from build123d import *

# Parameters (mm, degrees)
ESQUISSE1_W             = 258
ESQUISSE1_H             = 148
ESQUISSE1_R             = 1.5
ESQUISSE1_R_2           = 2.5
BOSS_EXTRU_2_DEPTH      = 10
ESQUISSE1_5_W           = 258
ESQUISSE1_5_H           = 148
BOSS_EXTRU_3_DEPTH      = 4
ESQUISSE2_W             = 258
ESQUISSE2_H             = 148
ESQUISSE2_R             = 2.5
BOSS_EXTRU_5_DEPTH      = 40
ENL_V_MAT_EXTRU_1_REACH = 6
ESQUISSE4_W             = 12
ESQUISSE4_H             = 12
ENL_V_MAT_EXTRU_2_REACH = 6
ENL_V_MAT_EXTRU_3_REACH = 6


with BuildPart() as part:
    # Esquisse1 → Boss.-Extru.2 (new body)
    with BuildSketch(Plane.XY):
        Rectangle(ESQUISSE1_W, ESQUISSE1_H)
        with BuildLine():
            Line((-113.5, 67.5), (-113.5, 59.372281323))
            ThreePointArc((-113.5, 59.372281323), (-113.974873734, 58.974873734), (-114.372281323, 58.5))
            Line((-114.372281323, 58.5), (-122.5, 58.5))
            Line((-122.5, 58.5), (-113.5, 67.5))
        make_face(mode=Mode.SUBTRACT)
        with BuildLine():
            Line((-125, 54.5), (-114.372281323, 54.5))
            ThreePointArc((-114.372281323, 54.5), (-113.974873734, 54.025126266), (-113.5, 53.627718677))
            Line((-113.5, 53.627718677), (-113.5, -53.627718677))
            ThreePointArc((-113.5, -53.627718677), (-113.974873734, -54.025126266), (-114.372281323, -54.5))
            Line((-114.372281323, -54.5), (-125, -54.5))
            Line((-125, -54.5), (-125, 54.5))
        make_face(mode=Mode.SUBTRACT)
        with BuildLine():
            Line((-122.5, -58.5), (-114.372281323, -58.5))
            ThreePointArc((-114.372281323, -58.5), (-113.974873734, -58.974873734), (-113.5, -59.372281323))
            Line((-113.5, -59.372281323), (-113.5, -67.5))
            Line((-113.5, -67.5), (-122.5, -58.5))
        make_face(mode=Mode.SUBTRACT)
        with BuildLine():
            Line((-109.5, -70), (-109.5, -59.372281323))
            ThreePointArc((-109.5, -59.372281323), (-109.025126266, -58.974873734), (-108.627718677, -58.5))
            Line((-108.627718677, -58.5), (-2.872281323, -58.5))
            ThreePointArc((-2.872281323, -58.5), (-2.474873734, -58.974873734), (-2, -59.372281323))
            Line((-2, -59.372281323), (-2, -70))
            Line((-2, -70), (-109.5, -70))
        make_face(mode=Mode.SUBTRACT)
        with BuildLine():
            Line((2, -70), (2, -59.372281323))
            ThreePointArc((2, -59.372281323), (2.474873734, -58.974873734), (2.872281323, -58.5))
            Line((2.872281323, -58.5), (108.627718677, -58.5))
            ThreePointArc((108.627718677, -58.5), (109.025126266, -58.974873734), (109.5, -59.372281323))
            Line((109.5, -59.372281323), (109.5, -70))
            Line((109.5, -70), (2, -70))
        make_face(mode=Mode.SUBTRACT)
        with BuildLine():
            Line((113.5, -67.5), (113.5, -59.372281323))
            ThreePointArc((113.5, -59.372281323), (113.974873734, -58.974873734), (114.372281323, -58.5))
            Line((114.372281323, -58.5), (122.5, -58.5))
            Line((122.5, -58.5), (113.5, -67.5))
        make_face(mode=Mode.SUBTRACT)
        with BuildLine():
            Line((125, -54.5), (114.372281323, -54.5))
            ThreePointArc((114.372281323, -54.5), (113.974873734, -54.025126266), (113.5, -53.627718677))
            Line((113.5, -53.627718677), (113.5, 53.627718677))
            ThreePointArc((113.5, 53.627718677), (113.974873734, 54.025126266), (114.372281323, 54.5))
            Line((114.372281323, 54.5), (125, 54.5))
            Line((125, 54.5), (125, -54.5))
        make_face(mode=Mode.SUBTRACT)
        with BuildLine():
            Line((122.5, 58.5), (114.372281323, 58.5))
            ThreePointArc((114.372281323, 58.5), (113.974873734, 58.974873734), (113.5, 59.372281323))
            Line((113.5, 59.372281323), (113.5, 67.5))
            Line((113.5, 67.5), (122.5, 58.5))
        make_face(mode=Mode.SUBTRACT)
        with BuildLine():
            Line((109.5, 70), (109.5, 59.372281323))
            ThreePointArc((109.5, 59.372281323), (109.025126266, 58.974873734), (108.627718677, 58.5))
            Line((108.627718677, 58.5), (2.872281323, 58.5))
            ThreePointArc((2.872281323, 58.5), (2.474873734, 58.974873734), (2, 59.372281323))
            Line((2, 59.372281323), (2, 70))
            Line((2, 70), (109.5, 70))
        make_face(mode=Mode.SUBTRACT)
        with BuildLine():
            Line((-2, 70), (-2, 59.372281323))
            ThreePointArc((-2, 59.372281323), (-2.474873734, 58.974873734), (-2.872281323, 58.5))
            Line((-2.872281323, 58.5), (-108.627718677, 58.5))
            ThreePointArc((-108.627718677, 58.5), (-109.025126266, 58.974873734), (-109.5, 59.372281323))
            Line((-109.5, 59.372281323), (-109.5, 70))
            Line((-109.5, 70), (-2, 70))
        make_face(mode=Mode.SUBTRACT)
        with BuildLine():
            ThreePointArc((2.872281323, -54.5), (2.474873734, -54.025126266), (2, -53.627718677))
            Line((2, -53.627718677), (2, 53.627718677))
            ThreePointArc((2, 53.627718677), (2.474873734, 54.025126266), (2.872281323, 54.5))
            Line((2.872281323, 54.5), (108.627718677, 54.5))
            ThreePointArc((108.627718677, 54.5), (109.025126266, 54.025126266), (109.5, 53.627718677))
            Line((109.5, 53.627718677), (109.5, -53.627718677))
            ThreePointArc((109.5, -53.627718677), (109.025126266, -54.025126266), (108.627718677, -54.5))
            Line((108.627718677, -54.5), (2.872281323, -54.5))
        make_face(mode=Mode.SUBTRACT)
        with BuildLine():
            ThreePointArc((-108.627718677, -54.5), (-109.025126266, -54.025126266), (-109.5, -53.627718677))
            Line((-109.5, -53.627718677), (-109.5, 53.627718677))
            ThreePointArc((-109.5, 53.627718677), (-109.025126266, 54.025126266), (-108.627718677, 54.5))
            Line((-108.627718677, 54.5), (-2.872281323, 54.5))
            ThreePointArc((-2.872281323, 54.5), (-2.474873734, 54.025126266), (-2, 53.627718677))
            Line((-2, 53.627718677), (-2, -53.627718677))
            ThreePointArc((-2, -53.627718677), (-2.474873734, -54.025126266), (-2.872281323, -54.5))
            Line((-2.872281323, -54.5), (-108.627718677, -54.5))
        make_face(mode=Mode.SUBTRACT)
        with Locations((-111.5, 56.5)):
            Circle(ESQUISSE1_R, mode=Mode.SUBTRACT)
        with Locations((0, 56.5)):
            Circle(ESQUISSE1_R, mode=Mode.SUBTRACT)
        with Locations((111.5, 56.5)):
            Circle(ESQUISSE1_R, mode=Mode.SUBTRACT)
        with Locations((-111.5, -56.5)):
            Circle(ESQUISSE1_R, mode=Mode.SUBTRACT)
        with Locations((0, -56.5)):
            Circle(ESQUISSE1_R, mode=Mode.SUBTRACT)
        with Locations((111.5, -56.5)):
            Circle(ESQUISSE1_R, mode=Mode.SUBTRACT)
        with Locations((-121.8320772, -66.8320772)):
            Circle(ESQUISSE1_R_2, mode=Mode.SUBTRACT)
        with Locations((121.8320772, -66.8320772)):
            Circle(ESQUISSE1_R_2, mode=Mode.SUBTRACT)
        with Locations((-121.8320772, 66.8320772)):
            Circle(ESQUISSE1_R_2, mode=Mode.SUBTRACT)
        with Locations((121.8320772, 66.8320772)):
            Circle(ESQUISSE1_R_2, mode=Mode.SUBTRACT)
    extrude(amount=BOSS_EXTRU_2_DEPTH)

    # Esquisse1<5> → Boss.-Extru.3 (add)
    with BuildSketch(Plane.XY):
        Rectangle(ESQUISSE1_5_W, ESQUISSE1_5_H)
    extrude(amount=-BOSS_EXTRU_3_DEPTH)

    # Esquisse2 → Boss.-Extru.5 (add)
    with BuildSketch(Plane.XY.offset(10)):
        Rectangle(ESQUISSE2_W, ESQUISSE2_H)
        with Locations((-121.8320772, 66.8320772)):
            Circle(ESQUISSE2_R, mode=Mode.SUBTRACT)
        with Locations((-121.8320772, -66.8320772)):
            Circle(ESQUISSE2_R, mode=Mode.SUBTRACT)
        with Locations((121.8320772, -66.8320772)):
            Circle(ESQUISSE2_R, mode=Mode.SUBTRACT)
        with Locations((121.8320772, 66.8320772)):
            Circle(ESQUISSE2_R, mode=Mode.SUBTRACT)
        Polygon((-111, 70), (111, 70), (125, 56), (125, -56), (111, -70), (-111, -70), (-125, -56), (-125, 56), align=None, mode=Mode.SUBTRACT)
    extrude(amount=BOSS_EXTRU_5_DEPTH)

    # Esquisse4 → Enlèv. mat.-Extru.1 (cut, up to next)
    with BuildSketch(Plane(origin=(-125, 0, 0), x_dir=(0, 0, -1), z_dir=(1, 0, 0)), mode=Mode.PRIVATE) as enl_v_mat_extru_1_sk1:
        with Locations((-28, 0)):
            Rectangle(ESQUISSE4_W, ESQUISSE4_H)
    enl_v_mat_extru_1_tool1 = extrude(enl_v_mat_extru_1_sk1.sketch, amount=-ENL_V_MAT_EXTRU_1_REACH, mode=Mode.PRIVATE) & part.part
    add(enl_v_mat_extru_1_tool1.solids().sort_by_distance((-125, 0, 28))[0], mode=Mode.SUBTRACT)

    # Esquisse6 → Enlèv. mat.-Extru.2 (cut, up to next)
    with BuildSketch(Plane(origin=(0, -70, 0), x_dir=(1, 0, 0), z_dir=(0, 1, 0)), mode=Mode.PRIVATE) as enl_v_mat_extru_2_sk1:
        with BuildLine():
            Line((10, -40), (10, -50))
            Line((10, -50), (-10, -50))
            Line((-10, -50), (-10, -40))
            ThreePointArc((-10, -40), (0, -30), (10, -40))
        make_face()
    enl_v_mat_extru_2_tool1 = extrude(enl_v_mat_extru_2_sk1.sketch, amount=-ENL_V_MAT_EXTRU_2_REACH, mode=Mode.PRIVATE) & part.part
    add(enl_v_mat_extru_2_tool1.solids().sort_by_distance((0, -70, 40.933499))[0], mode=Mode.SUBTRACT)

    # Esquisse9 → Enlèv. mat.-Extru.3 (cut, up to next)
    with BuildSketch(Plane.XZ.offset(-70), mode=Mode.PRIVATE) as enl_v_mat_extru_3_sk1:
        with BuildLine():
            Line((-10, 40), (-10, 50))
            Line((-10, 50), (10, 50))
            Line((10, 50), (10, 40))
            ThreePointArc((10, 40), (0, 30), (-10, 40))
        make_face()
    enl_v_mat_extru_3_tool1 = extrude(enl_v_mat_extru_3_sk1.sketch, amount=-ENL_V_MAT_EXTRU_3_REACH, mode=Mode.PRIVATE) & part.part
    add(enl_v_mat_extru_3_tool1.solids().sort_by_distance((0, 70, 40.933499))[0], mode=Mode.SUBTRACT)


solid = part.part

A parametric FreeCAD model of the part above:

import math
import FreeCAD as App
import Part
import Sketcher
from FreeCAD import Vector

doc = App.newDocument("Part")
body = doc.addObject("PartDesign::Body", "Body")

# Sketch on XY plane
sketch1 = body.newObject("Sketcher::SketchObject", "Sketch")
sketch1.AttachmentSupport = (doc.getObject("XY_Plane"), [""])
sketch1.MapMode = "FlatFace"
sketch1.addGeometry([
    Part.LineSegment(Vector(-129, 74, 0), Vector(-129, -74, 0)),  # 0
    Part.LineSegment(Vector(-129, -74, 0), Vector(129, -74, 0)),  # 1
    Part.LineSegment(Vector(129, -74, 0), Vector(129, 74, 0)),  # 2
    Part.LineSegment(Vector(129, 74, 0), Vector(-129, 74, 0)),  # 3
    Part.Circle(Vector(-121.8, -66.8, 0), Vector(0, 0, 1), 2.5),  # 4
    Part.LineSegment(Vector(-113.5, -67.5, 0), Vector(-122.5, -58.5, 0)),  # 5
    Part.LineSegment(Vector(-122.5, -58.5, 0), Vector(-114.4, -58.5, 0)),  # 6
    Part.ArcOfCircle(Part.Circle(Vector(-111.5, -56.5, 0), Vector(0, 0, 1), 3.5), math.radians(-145), math.radians(-125)),  # 7
    Part.LineSegment(Vector(-113.5, -59.4, 0), Vector(-113.5, -67.5, 0)),  # 8
    Part.Circle(Vector(-111.5, -56.5, 0), Vector(0, 0, 1), 1.5),  # 9
    Part.LineSegment(Vector(-2, -70, 0), Vector(-109.5, -70, 0)),  # 10
    Part.LineSegment(Vector(-109.5, -70, 0), Vector(-109.5, -59.4, 0)),  # 11
    Part.ArcOfCircle(Part.Circle(Vector(-111.5, -56.5, 0), Vector(0, 0, 1), 3.5), math.radians(-55), math.radians(-35)),  # 12
    Part.LineSegment(Vector(-108.6, -58.5, 0), Vector(-2.9, -58.5, 0)),  # 13
    Part.ArcOfCircle(Part.Circle(Vector(0, -56.5, 0), Vector(0, 0, 1), 3.5), math.radians(-145), math.radians(-125)),  # 14
    Part.LineSegment(Vector(-2, -59.4, 0), Vector(-2, -70, 0)),  # 15
    Part.Circle(Vector(0, -56.5, 0), Vector(0, 0, 1), 1.5),  # 16
    Part.LineSegment(Vector(109.5, -70, 0), Vector(2, -70, 0)),  # 17
    Part.LineSegment(Vector(2, -70, 0), Vector(2, -59.4, 0)),  # 18
    Part.ArcOfCircle(Part.Circle(Vector(0, -56.5, 0), Vector(0, 0, 1), 3.5), math.radians(-55), math.radians(-35)),  # 19
    Part.LineSegment(Vector(2.9, -58.5, 0), Vector(108.6, -58.5, 0)),  # 20
    Part.ArcOfCircle(Part.Circle(Vector(111.5, -56.5, 0), Vector(0, 0, 1), 3.5), math.radians(-145), math.radians(-125)),  # 21
    Part.LineSegment(Vector(109.5, -59.4, 0), Vector(109.5, -70, 0)),  # 22
    Part.Circle(Vector(121.8, -66.8, 0), Vector(0, 0, 1), 2.5),  # 23
    Part.LineSegment(Vector(122.5, -58.5, 0), Vector(113.5, -67.5, 0)),  # 24
    Part.LineSegment(Vector(113.5, -67.5, 0), Vector(113.5, -59.4, 0)),  # 25
    Part.ArcOfCircle(Part.Circle(Vector(111.5, -56.5, 0), Vector(0, 0, 1), 3.5), math.radians(-55), math.radians(-35)),  # 26
    Part.LineSegment(Vector(114.4, -58.5, 0), Vector(122.5, -58.5, 0)),  # 27
    Part.Circle(Vector(111.5, -56.5, 0), Vector(0, 0, 1), 1.5),  # 28
    Part.LineSegment(Vector(-125, -54.5, 0), Vector(-125, 54.5, 0)),  # 29
    Part.LineSegment(Vector(-125, 54.5, 0), Vector(-114.4, 54.5, 0)),  # 30
    Part.ArcOfCircle(Part.Circle(Vector(-111.5, 56.5, 0), Vector(0, 0, 1), 3.5), math.radians(-145), math.radians(-125)),  # 31
    Part.LineSegment(Vector(-113.5, 53.6, 0), Vector(-113.5, -53.6, 0)),  # 32
    Part.ArcOfCircle(Part.Circle(Vector(-111.5, -56.5, 0), Vector(0, 0, 1), 3.5), math.radians(125), math.radians(145)),  # 33
    Part.LineSegment(Vector(-114.4, -54.5, 0), Vector(-125, -54.5, 0)),  # 34
    Part.LineSegment(Vector(-2.9, -54.5, 0), Vector(-108.6, -54.5, 0)),  # 35
    Part.ArcOfCircle(Part.Circle(Vector(-111.5, -56.5, 0), Vector(0, 0, 1), 3.5), math.radians(35), math.radians(55)),  # 36
    Part.LineSegment(Vector(-109.5, -53.6, 0), Vector(-109.5, 53.6, 0)),  # 37
    Part.ArcOfCircle(Part.Circle(Vector(-111.5, 56.5, 0), Vector(0, 0, 1), 3.5), math.radians(-55), math.radians(-35)),  # 38
    Part.LineSegment(Vector(-108.6, 54.5, 0), Vector(-2.9, 54.5, 0)),  # 39
    Part.ArcOfCircle(Part.Circle(Vector(0, 56.5, 0), Vector(0, 0, 1), 3.5), math.radians(-145), math.radians(-125)),  # 40
    Part.LineSegment(Vector(-2, 53.6, 0), Vector(-2, -53.6, 0)),  # 41
    Part.ArcOfCircle(Part.Circle(Vector(0, -56.5, 0), Vector(0, 0, 1), 3.5), math.radians(125), math.radians(145)),  # 42
    Part.Circle(Vector(-111.5, 56.5, 0), Vector(0, 0, 1), 1.5),  # 43
    Part.LineSegment(Vector(-122.5, 58.5, 0), Vector(-113.5, 67.5, 0)),  # 44
    Part.LineSegment(Vector(-113.5, 67.5, 0), Vector(-113.5, 59.4, 0)),  # 45
    Part.ArcOfCircle(Part.Circle(Vector(-111.5, 56.5, 0), Vector(0, 0, 1), 3.5), math.radians(125), math.radians(145)),  # 46
    Part.LineSegment(Vector(-114.4, 58.5, 0), Vector(-122.5, 58.5, 0)),  # 47
    Part.Circle(Vector(-121.8, 66.8, 0), Vector(0, 0, 1), 2.5),  # 48
    Part.LineSegment(Vector(-109.5, 70, 0), Vector(-2, 70, 0)),  # 49
    Part.LineSegment(Vector(-2, 70, 0), Vector(-2, 59.4, 0)),  # 50
    Part.ArcOfCircle(Part.Circle(Vector(0, 56.5, 0), Vector(0, 0, 1), 3.5), math.radians(125), math.radians(145)),  # 51
    Part.LineSegment(Vector(-2.9, 58.5, 0), Vector(-108.6, 58.5, 0)),  # 52
    Part.ArcOfCircle(Part.Circle(Vector(-111.5, 56.5, 0), Vector(0, 0, 1), 3.5), math.radians(35), math.radians(55)),  # 53
    Part.LineSegment(Vector(-109.5, 59.4, 0), Vector(-109.5, 70, 0)),  # 54
    Part.LineSegment(Vector(108.6, -54.5, 0), Vector(2.9, -54.5, 0)),  # 55
    Part.ArcOfCircle(Part.Circle(Vector(0, -56.5, 0), Vector(0, 0, 1), 3.5), math.radians(35), math.radians(55)),  # 56
    Part.LineSegment(Vector(2, -53.6, 0), Vector(2, 53.6, 0)),  # 57
    Part.ArcOfCircle(Part.Circle(Vector(0, 56.5, 0), Vector(0, 0, 1), 3.5), math.radians(-55), math.radians(-35)),  # 58
    Part.LineSegment(Vector(2.9, 54.5, 0), Vector(108.6, 54.5, 0)),  # 59
    Part.ArcOfCircle(Part.Circle(Vector(111.5, 56.5, 0), Vector(0, 0, 1), 3.5), math.radians(-145), math.radians(-125)),  # 60
    Part.LineSegment(Vector(109.5, 53.6, 0), Vector(109.5, -53.6, 0)),  # 61
    Part.ArcOfCircle(Part.Circle(Vector(111.5, -56.5, 0), Vector(0, 0, 1), 3.5), math.radians(125), math.radians(145)),  # 62
    Part.LineSegment(Vector(125, 54.5, 0), Vector(125, -54.5, 0)),  # 63
    Part.LineSegment(Vector(125, -54.5, 0), Vector(114.4, -54.5, 0)),  # 64
    Part.ArcOfCircle(Part.Circle(Vector(111.5, -56.5, 0), Vector(0, 0, 1), 3.5), math.radians(35), math.radians(55)),  # 65
    Part.LineSegment(Vector(113.5, -53.6, 0), Vector(113.5, 53.6, 0)),  # 66
    Part.ArcOfCircle(Part.Circle(Vector(111.5, 56.5, 0), Vector(0, 0, 1), 3.5), math.radians(-55), math.radians(-35)),  # 67
    Part.LineSegment(Vector(114.4, 54.5, 0), Vector(125, 54.5, 0)),  # 68
    Part.Circle(Vector(0, 56.5, 0), Vector(0, 0, 1), 1.5),  # 69
    Part.LineSegment(Vector(2, 70, 0), Vector(109.5, 70, 0)),  # 70
    Part.LineSegment(Vector(109.5, 70, 0), Vector(109.5, 59.4, 0)),  # 71
    Part.ArcOfCircle(Part.Circle(Vector(111.5, 56.5, 0), Vector(0, 0, 1), 3.5), math.radians(125), math.radians(145)),  # 72
    Part.LineSegment(Vector(108.6, 58.5, 0), Vector(2.9, 58.5, 0)),  # 73
    Part.ArcOfCircle(Part.Circle(Vector(0, 56.5, 0), Vector(0, 0, 1), 3.5), math.radians(35), math.radians(55)),  # 74
    Part.LineSegment(Vector(2, 59.4, 0), Vector(2, 70, 0)),  # 75
    Part.Circle(Vector(111.5, 56.5, 0), Vector(0, 0, 1), 1.5),  # 76
    Part.LineSegment(Vector(113.5, 67.5, 0), Vector(122.5, 58.5, 0)),  # 77
    Part.LineSegment(Vector(122.5, 58.5, 0), Vector(114.4, 58.5, 0)),  # 78
    Part.ArcOfCircle(Part.Circle(Vector(111.5, 56.5, 0), Vector(0, 0, 1), 3.5), math.radians(35), math.radians(55)),  # 79
    Part.LineSegment(Vector(113.5, 59.4, 0), Vector(113.5, 67.5, 0)),  # 80
    Part.Circle(Vector(121.8, 66.8, 0), Vector(0, 0, 1), 2.5),  # 81
], False)
sketch1.addConstraint([
    Sketcher.Constraint("Coincident", 0, 2, 1, 1),
    Sketcher.Constraint("Coincident", 1, 2, 2, 1),
    Sketcher.Constraint("Coincident", 2, 2, 3, 1),
    Sketcher.Constraint("Coincident", 3, 2, 0, 1),
    Sketcher.Constraint("Coincident", 5, 2, 6, 1),
    Sketcher.Constraint("Coincident", 6, 2, 7, 1),
    Sketcher.Constraint("Coincident", 7, 2, 8, 1),
    Sketcher.Constraint("Coincident", 8, 2, 5, 1),
    Sketcher.Constraint("Coincident", 10, 2, 11, 1),
    Sketcher.Constraint("Coincident", 11, 2, 12, 1),
    Sketcher.Constraint("Coincident", 12, 2, 13, 1),
    Sketcher.Constraint("Coincident", 13, 2, 14, 1),
    Sketcher.Constraint("Coincident", 14, 2, 15, 1),
    Sketcher.Constraint("Coincident", 15, 2, 10, 1),
    Sketcher.Constraint("Coincident", 17, 2, 18, 1),
    Sketcher.Constraint("Coincident", 18, 2, 19, 1),
    Sketcher.Constraint("Coincident", 19, 2, 20, 1),
    Sketcher.Constraint("Coincident", 20, 2, 21, 1),
    Sketcher.Constraint("Coincident", 21, 2, 22, 1),
    Sketcher.Constraint("Coincident", 22, 2, 17, 1),
    Sketcher.Constraint("Coincident", 24, 2, 25, 1),
    Sketcher.Constraint("Coincident", 25, 2, 26, 1),
    Sketcher.Constraint("Coincident", 26, 2, 27, 1),
    Sketcher.Constraint("Coincident", 27, 2, 24, 1),
    Sketcher.Constraint("Coincident", 29, 2, 30, 1),
    Sketcher.Constraint("Coincident", 30, 2, 31, 1),
    Sketcher.Constraint("Coincident", 31, 2, 32, 1),
    Sketcher.Constraint("Coincident", 32, 2, 33, 1),
    Sketcher.Constraint("Coincident", 33, 2, 34, 1),
    Sketcher.Constraint("Coincident", 34, 2, 29, 1),
    Sketcher.Constraint("Coincident", 35, 2, 36, 1),
    Sketcher.Constraint("Coincident", 36, 2, 37, 1),
    Sketcher.Constraint("Coincident", 37, 2, 38, 1),
    Sketcher.Constraint("Coincident", 38, 2, 39, 1),
    Sketcher.Constraint("Coincident", 39, 2, 40, 1),
    Sketcher.Constraint("Coincident", 40, 2, 41, 1),
    Sketcher.Constraint("Coincident", 41, 2, 42, 1),
    Sketcher.Constraint("Coincident", 42, 2, 35, 1),
    Sketcher.Constraint("Coincident", 44, 2, 45, 1),
    Sketcher.Constraint("Coincident", 45, 2, 46, 1),
    Sketcher.Constraint("Coincident", 46, 2, 47, 1),
    Sketcher.Constraint("Coincident", 47, 2, 44, 1),
    Sketcher.Constraint("Coincident", 49, 2, 50, 1),
    Sketcher.Constraint("Coincident", 50, 2, 51, 1),
    Sketcher.Constraint("Coincident", 51, 2, 52, 1),
    Sketcher.Constraint("Coincident", 52, 2, 53, 1),
    Sketcher.Constraint("Coincident", 53, 2, 54, 1),
    Sketcher.Constraint("Coincident", 54, 2, 49, 1),
    Sketcher.Constraint("Coincident", 55, 2, 56, 1),
    Sketcher.Constraint("Coincident", 56, 2, 57, 1),
    Sketcher.Constraint("Coincident", 57, 2, 58, 1),
    Sketcher.Constraint("Coincident", 58, 2, 59, 1),
    Sketcher.Constraint("Coincident", 59, 2, 60, 1),
    Sketcher.Constraint("Coincident", 60, 2, 61, 1),
    Sketcher.Constraint("Coincident", 61, 2, 62, 1),
    Sketcher.Constraint("Coincident", 62, 2, 55, 1),
    Sketcher.Constraint("Coincident", 63, 2, 64, 1),
    Sketcher.Constraint("Coincident", 64, 2, 65, 1),
    Sketcher.Constraint("Coincident", 65, 2, 66, 1),
    Sketcher.Constraint("Coincident", 66, 2, 67, 1),
    Sketcher.Constraint("Coincident", 67, 2, 68, 1),
    Sketcher.Constraint("Coincident", 68, 2, 63, 1),
    Sketcher.Constraint("Coincident", 70, 2, 71, 1),
    Sketcher.Constraint("Coincident", 71, 2, 72, 1),
    Sketcher.Constraint("Coincident", 72, 2, 73, 1),
    Sketcher.Constraint("Coincident", 73, 2, 74, 1),
    Sketcher.Constraint("Coincident", 74, 2, 75, 1),
    Sketcher.Constraint("Coincident", 75, 2, 70, 1),
    Sketcher.Constraint("Coincident", 77, 2, 78, 1),
    Sketcher.Constraint("Coincident", 78, 2, 79, 1),
    Sketcher.Constraint("Coincident", 79, 2, 80, 1),
    Sketcher.Constraint("Coincident", 80, 2, 77, 1),
    Sketcher.Constraint("Vertical", 0),
    Sketcher.Constraint("Horizontal", 1),
    Sketcher.Constraint("Vertical", 2),
    Sketcher.Constraint("Horizontal", 3),
    Sketcher.Constraint("Horizontal", 6),
    Sketcher.Constraint("Vertical", 8),
    Sketcher.Constraint("Horizontal", 10),
    Sketcher.Constraint("Vertical", 11),
    Sketcher.Constraint("Horizontal", 13),
    Sketcher.Constraint("Vertical", 15),
    Sketcher.Constraint("Horizontal", 17),
    Sketcher.Constraint("Vertical", 18),
    Sketcher.Constraint("Horizontal", 20),
    Sketcher.Constraint("Vertical", 22),
    Sketcher.Constraint("Vertical", 25),
    Sketcher.Constraint("Horizontal", 27),
    Sketcher.Constraint("Vertical", 29),
    Sketcher.Constraint("Horizontal", 30),
    Sketcher.Constraint("Vertical", 32),
    Sketcher.Constraint("Horizontal", 34),
    Sketcher.Constraint("Horizontal", 35),
    Sketcher.Constraint("Vertical", 37),
    Sketcher.Constraint("Horizontal", 39),
    Sketcher.Constraint("Vertical", 41),
    Sketcher.Constraint("Vertical", 45),
    Sketcher.Constraint("Horizontal", 47),
    Sketcher.Constraint("Horizontal", 49),
    Sketcher.Constraint("Vertical", 50),
    Sketcher.Constraint("Horizontal", 52),
    Sketcher.Constraint("Vertical", 54),
    Sketcher.Constraint("Horizontal", 55),
    Sketcher.Constraint("Vertical", 57),
    Sketcher.Constraint("Horizontal", 59),
    Sketcher.Constraint("Vertical", 61),
    Sketcher.Constraint("Vertical", 63),
    Sketcher.Constraint("Horizontal", 64),
    Sketcher.Constraint("Vertical", 66),
    Sketcher.Constraint("Horizontal", 68),
    Sketcher.Constraint("Horizontal", 70),
    Sketcher.Constraint("Vertical", 71),
    Sketcher.Constraint("Horizontal", 73),
    Sketcher.Constraint("Vertical", 75),
    Sketcher.Constraint("Horizontal", 78),
    Sketcher.Constraint("Vertical", 80),
    Sketcher.Constraint("Coincident", 9, 3, 7, 3),
    Sketcher.Constraint("Coincident", 12, 3, 7, 3),
    Sketcher.Constraint("Coincident", 16, 3, 14, 3),
    Sketcher.Constraint("Coincident", 19, 3, 14, 3),
    Sketcher.Constraint("Coincident", 26, 3, 21, 3),
    Sketcher.Constraint("Coincident", 28, 3, 21, 3),
    Sketcher.Constraint("Coincident", 33, 3, 7, 3),
    Sketcher.Constraint("Coincident", 36, 3, 7, 3),
    Sketcher.Constraint("Coincident", 38, 3, 31, 3),
    Sketcher.Constraint("Coincident", 42, 3, 14, 3),
    Sketcher.Constraint("Coincident", 43, 3, 31, 3),
    Sketcher.Constraint("Coincident", 46, 3, 31, 3),
    Sketcher.Constraint("Coincident", 51, 3, 40, 3),
    Sketcher.Constraint("Coincident", 53, 3, 31, 3),
    Sketcher.Constraint("Coincident", 56, 3, 14, 3),
    Sketcher.Constraint("Coincident", 58, 3, 40, 3),
    Sketcher.Constraint("Coincident", 62, 3, 21, 3),
    Sketcher.Constraint("Coincident", 65, 3, 21, 3),
    Sketcher.Constraint("Coincident", 67, 3, 60, 3),
    Sketcher.Constraint("Coincident", 69, 3, 40, 3),
    Sketcher.Constraint("Coincident", 72, 3, 60, 3),
    Sketcher.Constraint("Coincident", 74, 3, 40, 3),
    Sketcher.Constraint("Coincident", 76, 3, 60, 3),
    Sketcher.Constraint("Coincident", 79, 3, 60, 3),
    Sketcher.Constraint("Equal", 7, 12),
    Sketcher.Constraint("Equal", 12, 14),
    Sketcher.Constraint("Equal", 9, 16),
    Sketcher.Constraint("Equal", 14, 19),
    Sketcher.Constraint("Equal", 19, 21),
    Sketcher.Constraint("Equal", 4, 23),
    Sketcher.Constraint("Equal", 21, 26),
    Sketcher.Constraint("Equal", 16, 28),
    Sketcher.Constraint("Equal", 26, 31),
    Sketcher.Constraint("Equal", 31, 33),
    Sketcher.Constraint("Equal", 33, 36),
    Sketcher.Constraint("Equal", 36, 38),
    Sketcher.Constraint("Equal", 38, 40),
    Sketcher.Constraint("Equal", 40, 42),
    Sketcher.Constraint("Equal", 28, 43),
    Sketcher.Constraint("Equal", 42, 46),
    Sketcher.Constraint("Equal", 23, 48),
    Sketcher.Constraint("Equal", 46, 51),
    Sketcher.Constraint("Equal", 51, 53),
    Sketcher.Constraint("Equal", 53, 56),
    Sketcher.Constraint("Equal", 56, 58),
    Sketcher.Constraint("Equal", 58, 60),
    Sketcher.Constraint("Equal", 60, 62),
    Sketcher.Constraint("Equal", 62, 65),
    Sketcher.Constraint("Equal", 65, 67),
    Sketcher.Constraint("Equal", 43, 69),
    Sketcher.Constraint("Equal", 67, 72),
    Sketcher.Constraint("Equal", 72, 74),
    Sketcher.Constraint("Equal", 69, 76),
    Sketcher.Constraint("Equal", 74, 79),
    Sketcher.Constraint("Equal", 48, 81),
    Sketcher.Constraint("Symmetric", 21, 3, 31, 3, -1, 1),
    Sketcher.Constraint("Symmetric", 14, 3, 40, 3, -1, 1),
    Sketcher.Constraint("Symmetric", 23, 3, 48, 3, -1, 1),
    Sketcher.Constraint("Symmetric", 7, 3, 60, 3, -1, 1),
    Sketcher.Constraint("Symmetric", 4, 3, 81, 3, -1, 1),
    Sketcher.Constraint("Symmetric", 0, 2, 2, 2, -1, 1),
    Sketcher.Constraint("Symmetric", 24, 2, 44, 2, -1, 1),
    Sketcher.Constraint("Symmetric", 27, 2, 47, 2, -1, 1),
    Sketcher.Constraint("Symmetric", 17, 2, 49, 2, -1, 1),
    Sketcher.Constraint("Symmetric", 29, 2, 63, 2, -1, 1),
    Sketcher.Constraint("Symmetric", 10, 2, 70, 2, -1, 1),
    Sketcher.Constraint("Symmetric", 5, 2, 77, 2, -1, 1),
    Sketcher.Constraint("Symmetric", 8, 2, 80, 2, -1, 1),
    Sketcher.Constraint("Symmetric", 7, 3, 21, 3, -2),
    Sketcher.Constraint("Symmetric", 4, 3, 23, 3, -2),
    Sketcher.Constraint("Symmetric", 15, 2, 17, 2, -2),
    Sketcher.Constraint("Symmetric", 13, 2, 19, 2, -2),
    Sketcher.Constraint("Symmetric", 8, 2, 24, 2, -2),
    Sketcher.Constraint("Symmetric", 5, 2, 27, 2, -2),
    Sketcher.Constraint("Perpendicular", 5, 24),
    Sketcher.Constraint("Horizontal", 12, 3, 14, 3),
    Sketcher.Constraint("Horizontal", 7, 2, 11, 2),
    Sketcher.Constraint("Horizontal", 6, 2, 12, 2),
    Sketcher.Constraint("Horizontal", 11, 2, 14, 2),
    Sketcher.Constraint("Horizontal", 18, 2, 21, 2),
    Sketcher.Constraint("Horizontal", 34, 2, 35, 2),
    Sketcher.Constraint("Horizontal", 32, 2, 36, 2),
    Sketcher.Constraint("Horizontal", 30, 2, 38, 2),
    Sketcher.Constraint("Horizontal", 37, 2, 40, 2),
    Sketcher.Constraint("Horizontal", 47, 2, 51, 2),
    Sketcher.Constraint("Horizontal", 50, 2, 53, 2),
    Sketcher.Constraint("Horizontal", 42, 2, 55, 2),
    Sketcher.Constraint("Horizontal", 41, 2, 56, 2),
    Sketcher.Constraint("Horizontal", 39, 2, 58, 2),
    Sketcher.Constraint("Horizontal", 57, 2, 60, 2),
    Sketcher.Constraint("Horizontal", 62, 2, 63, 2),
    Sketcher.Constraint("Horizontal", 61, 2, 65, 2),
    Sketcher.Constraint("Horizontal", 59, 2, 67, 2),
    Sketcher.Constraint("Horizontal", 52, 2, 72, 2),
    Sketcher.Constraint("Horizontal", 71, 2, 74, 2),
    Sketcher.Constraint("Vertical", 6, 2, 30, 2),
    Sketcher.Constraint("Vertical", 8, 2, 31, 2),
    Sketcher.Constraint("Equal", 78, 8),
    Sketcher.Constraint("Equal", 68, 11),
    Sketcher.Constraint("Diameter", 4, 5.0),
    Sketcher.Constraint("Diameter", 9, 3.0),
    Sketcher.Constraint("Radius", 7, 3.5),
    Sketcher.Constraint("DistanceX", 1, 1, 1, 2, 258.0),
    Sketcher.Constraint("DistanceY", 0, 2, 0, 1, 148.0),
    Sketcher.Constraint("DistanceY", 29, 1, 29, 2, 109.0),
    Sketcher.Constraint("DistanceX", 10, 2, 10, 1, 107.5),
    Sketcher.Constraint("DistanceY", 10, 2, -1, 1, 70.0),
    Sketcher.Constraint("DistanceX", 14, 2, -1, 1, 2.0),
    Sketcher.Constraint("DistanceX", 5, 2, -1, 1, 122.5),
    Sketcher.Constraint("DistanceX", 4, 3, -1, 1, 121.832077),
    Sketcher.Constraint("DistanceY", 4, 3, -1, 1, 66.832077),
])
pad1 = body.newObject("PartDesign::Pad", "Pad")
pad1.Profile = sketch1
pad1.Length = 10

# Sketch on XY plane
sketch2 = body.newObject("Sketcher::SketchObject", "Sketch001")
sketch2.AttachmentSupport = (doc.getObject("XY_Plane"), [""])
sketch2.MapMode = "FlatFace"
sketch2.addGeometry([
    Part.LineSegment(Vector(-129, 74, 0), Vector(-129, -74, 0)),
    Part.LineSegment(Vector(-129, -74, 0), Vector(129, -74, 0)),
    Part.LineSegment(Vector(129, -74, 0), Vector(129, 74, 0)),
    Part.LineSegment(Vector(129, 74, 0), Vector(-129, 74, 0)),
], False)
sketch2.addConstraint([
    Sketcher.Constraint("Coincident", 0, 2, 1, 1),
    Sketcher.Constraint("Coincident", 1, 2, 2, 1),
    Sketcher.Constraint("Coincident", 2, 2, 3, 1),
    Sketcher.Constraint("Coincident", 3, 2, 0, 1),
    Sketcher.Constraint("Vertical", 0),
    Sketcher.Constraint("Horizontal", 1),
    Sketcher.Constraint("Vertical", 2),
    Sketcher.Constraint("Horizontal", 3),
    Sketcher.Constraint("Symmetric", 0, 2, 2, 2, -1, 1),
    Sketcher.Constraint("DistanceX", 1, 1, 1, 2, 258.0),
    Sketcher.Constraint("DistanceY", 0, 2, 0, 1, 148.0),
])
pad2 = body.newObject("PartDesign::Pad", "Pad001")
pad2.Profile = sketch2
pad2.Length = 4
pad2.Reversed = True

# Sketch on XY plane
sketch3 = body.newObject("Sketcher::SketchObject", "Sketch002")
sketch3.AttachmentSupport = (doc.getObject("XY_Plane"), [""])
sketch3.MapMode = "FlatFace"
sketch3.AttachmentOffset = App.Placement(Vector(0, 0, 10), App.Rotation())
sketch3.addGeometry([
    Part.LineSegment(Vector(-129, 74, 0), Vector(-129, -74, 0)),  # 0
    Part.LineSegment(Vector(-129, -74, 0), Vector(129, -74, 0)),  # 1
    Part.LineSegment(Vector(129, -74, 0), Vector(129, 74, 0)),  # 2
    Part.LineSegment(Vector(129, 74, 0), Vector(-129, 74, 0)),  # 3
    Part.Circle(Vector(-121.8, -66.8, 0), Vector(0, 0, 1), 2.5),  # 4
    Part.Circle(Vector(121.8, -66.8, 0), Vector(0, 0, 1), 2.5),  # 5
    Part.Circle(Vector(-121.8, 66.8, 0), Vector(0, 0, 1), 2.5),  # 6
    Part.LineSegment(Vector(-125, 56, 0), Vector(-111, 70, 0)),  # 7
    Part.LineSegment(Vector(-111, 70, 0), Vector(111, 70, 0)),  # 8
    Part.LineSegment(Vector(111, 70, 0), Vector(125, 56, 0)),  # 9
    Part.LineSegment(Vector(125, 56, 0), Vector(125, -56, 0)),  # 10
    Part.LineSegment(Vector(125, -56, 0), Vector(111, -70, 0)),  # 11
    Part.LineSegment(Vector(111, -70, 0), Vector(-111, -70, 0)),  # 12
    Part.LineSegment(Vector(-111, -70, 0), Vector(-125, -56, 0)),  # 13
    Part.LineSegment(Vector(-125, -56, 0), Vector(-125, 56, 0)),  # 14
    Part.Circle(Vector(121.8, 66.8, 0), Vector(0, 0, 1), 2.5),  # 15
], False)
sketch3.addConstraint([
    Sketcher.Constraint("Coincident", 0, 2, 1, 1),
    Sketcher.Constraint("Coincident", 1, 2, 2, 1),
    Sketcher.Constraint("Coincident", 2, 2, 3, 1),
    Sketcher.Constraint("Coincident", 3, 2, 0, 1),
    Sketcher.Constraint("Coincident", 7, 2, 8, 1),
    Sketcher.Constraint("Coincident", 8, 2, 9, 1),
    Sketcher.Constraint("Coincident", 9, 2, 10, 1),
    Sketcher.Constraint("Coincident", 10, 2, 11, 1),
    Sketcher.Constraint("Coincident", 11, 2, 12, 1),
    Sketcher.Constraint("Coincident", 12, 2, 13, 1),
    Sketcher.Constraint("Coincident", 13, 2, 14, 1),
    Sketcher.Constraint("Coincident", 14, 2, 7, 1),
    Sketcher.Constraint("Vertical", 0),
    Sketcher.Constraint("Horizontal", 1),
    Sketcher.Constraint("Vertical", 2),
    Sketcher.Constraint("Horizontal", 3),
    Sketcher.Constraint("Horizontal", 8),
    Sketcher.Constraint("Vertical", 10),
    Sketcher.Constraint("Horizontal", 12),
    Sketcher.Constraint("Vertical", 14),
    Sketcher.Constraint("Equal", 4, 5),
    Sketcher.Constraint("Equal", 5, 6),
    Sketcher.Constraint("Equal", 6, 15),
    Sketcher.Constraint("Symmetric", 5, 3, 6, 3, -1, 1),
    Sketcher.Constraint("Symmetric", 4, 3, 15, 3, -1, 1),
    Sketcher.Constraint("Symmetric", 0, 2, 2, 2, -1, 1),
    Sketcher.Constraint("Symmetric", 7, 2, 11, 2, -1, 1),
    Sketcher.Constraint("Symmetric", 9, 2, 13, 2, -1, 1),
    Sketcher.Constraint("Symmetric", 4, 3, 5, 3, -2),
    Sketcher.Constraint("Perpendicular", 7, 9),
    Sketcher.Constraint("Perpendicular", 9, 11),
    Sketcher.Constraint("Perpendicular", 11, 13),
    Sketcher.Constraint("Horizontal", 10, 2, 13, 2),
    Sketcher.Constraint("Vertical", 8, 2, 11, 2),
    Sketcher.Constraint("Diameter", 4, 5.0),
    Sketcher.Constraint("DistanceX", 1, 1, 1, 2, 258.0),
    Sketcher.Constraint("DistanceX", 8, 1, 8, 2, 222.0),
    Sketcher.Constraint("DistanceY", 0, 2, 0, 1, 148.0),
    Sketcher.Constraint("DistanceY", 10, 2, 10, 1, 112.0),
    Sketcher.Constraint("DistanceY", -1, 1, 7, 2, 70.0),
    Sketcher.Constraint("DistanceX", 4, 3, -1, 1, 121.832077),
    Sketcher.Constraint("DistanceY", 4, 3, -1, 1, 66.832077),
])
pad3 = body.newObject("PartDesign::Pad", "Pad002")
pad3.Profile = sketch3
pad3.Length = 40

# Sketch on YZ plane
sketch4 = body.newObject("Sketcher::SketchObject", "Sketch003")
sketch4.AttachmentSupport = (doc.getObject("YZ_Plane"), [""])
sketch4.MapMode = "FlatFace"
sketch4.AttachmentOffset = App.Placement(Vector(0, 0, -125), App.Rotation())
sketch4.addGeometry([
    Part.LineSegment(Vector(6, 34, 0), Vector(-6, 34, 0)),
    Part.LineSegment(Vector(-6, 34, 0), Vector(-6, 22, 0)),
    Part.LineSegment(Vector(-6, 22, 0), Vector(6, 22, 0)),
    Part.LineSegment(Vector(6, 22, 0), Vector(6, 34, 0)),
], False)
sketch4.addConstraint([
    Sketcher.Constraint("Coincident", 0, 2, 1, 1),
    Sketcher.Constraint("Coincident", 1, 2, 2, 1),
    Sketcher.Constraint("Coincident", 2, 2, 3, 1),
    Sketcher.Constraint("Coincident", 3, 2, 0, 1),
    Sketcher.Constraint("Horizontal", 0),
    Sketcher.Constraint("Vertical", 1),
    Sketcher.Constraint("Horizontal", 2),
    Sketcher.Constraint("Vertical", 3),
    Sketcher.Constraint("Equal", 2, 1),
    Sketcher.Constraint("DistanceX", 0, 2, 0, 1, 12.0),
    Sketcher.Constraint("DistanceX", 0, 2, -1, 1, 6.0),
    Sketcher.Constraint("DistanceY", -1, 1, 0, 2, 34.0),
])
pocket1 = body.newObject("PartDesign::Pocket", "Pocket")
pocket1.Profile = sketch4
pocket1.Type = "UpToFirst"

# Sketch on XZ plane
sketch5 = body.newObject("Sketcher::SketchObject", "Sketch004")
sketch5.AttachmentSupport = (doc.getObject("XZ_Plane"), [""])
sketch5.MapMode = "FlatFace"
sketch5.AttachmentOffset = App.Placement(Vector(0, 0, 70), App.Rotation())
sketch5.addGeometry([
    Part.LineSegment(Vector(10, 50, 0), Vector(10, 40, 0)),
    Part.ArcOfCircle(Part.Circle(Vector(0, 40, 0), Vector(0, 0, 1), 10), math.radians(180), math.radians(360)),
    Part.LineSegment(Vector(-10, 40, 0), Vector(-10, 50, 0)),
    Part.LineSegment(Vector(-10, 50, 0), Vector(10, 50, 0)),
], False)
sketch5.addConstraint([
    Sketcher.Constraint("Tangent", 0, 2, 1, 2),
    Sketcher.Constraint("Tangent", 1, 1, 2, 1),
    Sketcher.Constraint("Coincident", 2, 2, 3, 1),
    Sketcher.Constraint("Coincident", 3, 2, 0, 1),
    Sketcher.Constraint("Vertical", 0),
    Sketcher.Constraint("Vertical", 2),
    Sketcher.Constraint("Horizontal", 3),
    Sketcher.Constraint("PointOnObject", 1, 3, -2),
    Sketcher.Constraint("Radius", 1, 10.0),
    Sketcher.Constraint("DistanceY", 0, 2, 0, 1, 10.0),
    Sketcher.Constraint("DistanceY", -1, 1, 1, 3, 40.0),
])
pocket2 = body.newObject("PartDesign::Pocket", "Pocket001")
pocket2.Profile = sketch5
pocket2.Type = "UpToFirst"
pocket2.Reversed = True

# Sketch on XZ plane
sketch6 = body.newObject("Sketcher::SketchObject", "Sketch005")
sketch6.AttachmentSupport = (doc.getObject("XZ_Plane"), [""])
sketch6.MapMode = "FlatFace"
sketch6.AttachmentOffset = App.Placement(Vector(0, 0, -70), App.Rotation())
sketch6.addGeometry([
    Part.LineSegment(Vector(-10, 50, 0), Vector(-10, 40, 0)),
    Part.ArcOfCircle(Part.Circle(Vector(0, 40, 0), Vector(0, 0, 1), 10), math.radians(180), math.radians(360)),
    Part.LineSegment(Vector(10, 40, 0), Vector(10, 50, 0)),
    Part.LineSegment(Vector(10, 50, 0), Vector(-10, 50, 0)),
], False)
sketch6.addConstraint([
    Sketcher.Constraint("Tangent", 0, 2, 1, 1),
    Sketcher.Constraint("Tangent", 1, 2, 2, 1),
    Sketcher.Constraint("Coincident", 2, 2, 3, 1),
    Sketcher.Constraint("Coincident", 3, 2, 0, 1),
    Sketcher.Constraint("Vertical", 0),
    Sketcher.Constraint("Vertical", 2),
    Sketcher.Constraint("Horizontal", 3),
    Sketcher.Constraint("PointOnObject", 1, 3, -2),
    Sketcher.Constraint("Radius", 1, 10.0),
    Sketcher.Constraint("DistanceY", 0, 2, 0, 1, 10.0),
    Sketcher.Constraint("DistanceY", -1, 1, 1, 3, 40.0),
])
pocket3 = body.newObject("PartDesign::Pocket", "Pocket002")
pocket3.Profile = sketch6
pocket3.Type = "UpToFirst"

doc.recompute()
